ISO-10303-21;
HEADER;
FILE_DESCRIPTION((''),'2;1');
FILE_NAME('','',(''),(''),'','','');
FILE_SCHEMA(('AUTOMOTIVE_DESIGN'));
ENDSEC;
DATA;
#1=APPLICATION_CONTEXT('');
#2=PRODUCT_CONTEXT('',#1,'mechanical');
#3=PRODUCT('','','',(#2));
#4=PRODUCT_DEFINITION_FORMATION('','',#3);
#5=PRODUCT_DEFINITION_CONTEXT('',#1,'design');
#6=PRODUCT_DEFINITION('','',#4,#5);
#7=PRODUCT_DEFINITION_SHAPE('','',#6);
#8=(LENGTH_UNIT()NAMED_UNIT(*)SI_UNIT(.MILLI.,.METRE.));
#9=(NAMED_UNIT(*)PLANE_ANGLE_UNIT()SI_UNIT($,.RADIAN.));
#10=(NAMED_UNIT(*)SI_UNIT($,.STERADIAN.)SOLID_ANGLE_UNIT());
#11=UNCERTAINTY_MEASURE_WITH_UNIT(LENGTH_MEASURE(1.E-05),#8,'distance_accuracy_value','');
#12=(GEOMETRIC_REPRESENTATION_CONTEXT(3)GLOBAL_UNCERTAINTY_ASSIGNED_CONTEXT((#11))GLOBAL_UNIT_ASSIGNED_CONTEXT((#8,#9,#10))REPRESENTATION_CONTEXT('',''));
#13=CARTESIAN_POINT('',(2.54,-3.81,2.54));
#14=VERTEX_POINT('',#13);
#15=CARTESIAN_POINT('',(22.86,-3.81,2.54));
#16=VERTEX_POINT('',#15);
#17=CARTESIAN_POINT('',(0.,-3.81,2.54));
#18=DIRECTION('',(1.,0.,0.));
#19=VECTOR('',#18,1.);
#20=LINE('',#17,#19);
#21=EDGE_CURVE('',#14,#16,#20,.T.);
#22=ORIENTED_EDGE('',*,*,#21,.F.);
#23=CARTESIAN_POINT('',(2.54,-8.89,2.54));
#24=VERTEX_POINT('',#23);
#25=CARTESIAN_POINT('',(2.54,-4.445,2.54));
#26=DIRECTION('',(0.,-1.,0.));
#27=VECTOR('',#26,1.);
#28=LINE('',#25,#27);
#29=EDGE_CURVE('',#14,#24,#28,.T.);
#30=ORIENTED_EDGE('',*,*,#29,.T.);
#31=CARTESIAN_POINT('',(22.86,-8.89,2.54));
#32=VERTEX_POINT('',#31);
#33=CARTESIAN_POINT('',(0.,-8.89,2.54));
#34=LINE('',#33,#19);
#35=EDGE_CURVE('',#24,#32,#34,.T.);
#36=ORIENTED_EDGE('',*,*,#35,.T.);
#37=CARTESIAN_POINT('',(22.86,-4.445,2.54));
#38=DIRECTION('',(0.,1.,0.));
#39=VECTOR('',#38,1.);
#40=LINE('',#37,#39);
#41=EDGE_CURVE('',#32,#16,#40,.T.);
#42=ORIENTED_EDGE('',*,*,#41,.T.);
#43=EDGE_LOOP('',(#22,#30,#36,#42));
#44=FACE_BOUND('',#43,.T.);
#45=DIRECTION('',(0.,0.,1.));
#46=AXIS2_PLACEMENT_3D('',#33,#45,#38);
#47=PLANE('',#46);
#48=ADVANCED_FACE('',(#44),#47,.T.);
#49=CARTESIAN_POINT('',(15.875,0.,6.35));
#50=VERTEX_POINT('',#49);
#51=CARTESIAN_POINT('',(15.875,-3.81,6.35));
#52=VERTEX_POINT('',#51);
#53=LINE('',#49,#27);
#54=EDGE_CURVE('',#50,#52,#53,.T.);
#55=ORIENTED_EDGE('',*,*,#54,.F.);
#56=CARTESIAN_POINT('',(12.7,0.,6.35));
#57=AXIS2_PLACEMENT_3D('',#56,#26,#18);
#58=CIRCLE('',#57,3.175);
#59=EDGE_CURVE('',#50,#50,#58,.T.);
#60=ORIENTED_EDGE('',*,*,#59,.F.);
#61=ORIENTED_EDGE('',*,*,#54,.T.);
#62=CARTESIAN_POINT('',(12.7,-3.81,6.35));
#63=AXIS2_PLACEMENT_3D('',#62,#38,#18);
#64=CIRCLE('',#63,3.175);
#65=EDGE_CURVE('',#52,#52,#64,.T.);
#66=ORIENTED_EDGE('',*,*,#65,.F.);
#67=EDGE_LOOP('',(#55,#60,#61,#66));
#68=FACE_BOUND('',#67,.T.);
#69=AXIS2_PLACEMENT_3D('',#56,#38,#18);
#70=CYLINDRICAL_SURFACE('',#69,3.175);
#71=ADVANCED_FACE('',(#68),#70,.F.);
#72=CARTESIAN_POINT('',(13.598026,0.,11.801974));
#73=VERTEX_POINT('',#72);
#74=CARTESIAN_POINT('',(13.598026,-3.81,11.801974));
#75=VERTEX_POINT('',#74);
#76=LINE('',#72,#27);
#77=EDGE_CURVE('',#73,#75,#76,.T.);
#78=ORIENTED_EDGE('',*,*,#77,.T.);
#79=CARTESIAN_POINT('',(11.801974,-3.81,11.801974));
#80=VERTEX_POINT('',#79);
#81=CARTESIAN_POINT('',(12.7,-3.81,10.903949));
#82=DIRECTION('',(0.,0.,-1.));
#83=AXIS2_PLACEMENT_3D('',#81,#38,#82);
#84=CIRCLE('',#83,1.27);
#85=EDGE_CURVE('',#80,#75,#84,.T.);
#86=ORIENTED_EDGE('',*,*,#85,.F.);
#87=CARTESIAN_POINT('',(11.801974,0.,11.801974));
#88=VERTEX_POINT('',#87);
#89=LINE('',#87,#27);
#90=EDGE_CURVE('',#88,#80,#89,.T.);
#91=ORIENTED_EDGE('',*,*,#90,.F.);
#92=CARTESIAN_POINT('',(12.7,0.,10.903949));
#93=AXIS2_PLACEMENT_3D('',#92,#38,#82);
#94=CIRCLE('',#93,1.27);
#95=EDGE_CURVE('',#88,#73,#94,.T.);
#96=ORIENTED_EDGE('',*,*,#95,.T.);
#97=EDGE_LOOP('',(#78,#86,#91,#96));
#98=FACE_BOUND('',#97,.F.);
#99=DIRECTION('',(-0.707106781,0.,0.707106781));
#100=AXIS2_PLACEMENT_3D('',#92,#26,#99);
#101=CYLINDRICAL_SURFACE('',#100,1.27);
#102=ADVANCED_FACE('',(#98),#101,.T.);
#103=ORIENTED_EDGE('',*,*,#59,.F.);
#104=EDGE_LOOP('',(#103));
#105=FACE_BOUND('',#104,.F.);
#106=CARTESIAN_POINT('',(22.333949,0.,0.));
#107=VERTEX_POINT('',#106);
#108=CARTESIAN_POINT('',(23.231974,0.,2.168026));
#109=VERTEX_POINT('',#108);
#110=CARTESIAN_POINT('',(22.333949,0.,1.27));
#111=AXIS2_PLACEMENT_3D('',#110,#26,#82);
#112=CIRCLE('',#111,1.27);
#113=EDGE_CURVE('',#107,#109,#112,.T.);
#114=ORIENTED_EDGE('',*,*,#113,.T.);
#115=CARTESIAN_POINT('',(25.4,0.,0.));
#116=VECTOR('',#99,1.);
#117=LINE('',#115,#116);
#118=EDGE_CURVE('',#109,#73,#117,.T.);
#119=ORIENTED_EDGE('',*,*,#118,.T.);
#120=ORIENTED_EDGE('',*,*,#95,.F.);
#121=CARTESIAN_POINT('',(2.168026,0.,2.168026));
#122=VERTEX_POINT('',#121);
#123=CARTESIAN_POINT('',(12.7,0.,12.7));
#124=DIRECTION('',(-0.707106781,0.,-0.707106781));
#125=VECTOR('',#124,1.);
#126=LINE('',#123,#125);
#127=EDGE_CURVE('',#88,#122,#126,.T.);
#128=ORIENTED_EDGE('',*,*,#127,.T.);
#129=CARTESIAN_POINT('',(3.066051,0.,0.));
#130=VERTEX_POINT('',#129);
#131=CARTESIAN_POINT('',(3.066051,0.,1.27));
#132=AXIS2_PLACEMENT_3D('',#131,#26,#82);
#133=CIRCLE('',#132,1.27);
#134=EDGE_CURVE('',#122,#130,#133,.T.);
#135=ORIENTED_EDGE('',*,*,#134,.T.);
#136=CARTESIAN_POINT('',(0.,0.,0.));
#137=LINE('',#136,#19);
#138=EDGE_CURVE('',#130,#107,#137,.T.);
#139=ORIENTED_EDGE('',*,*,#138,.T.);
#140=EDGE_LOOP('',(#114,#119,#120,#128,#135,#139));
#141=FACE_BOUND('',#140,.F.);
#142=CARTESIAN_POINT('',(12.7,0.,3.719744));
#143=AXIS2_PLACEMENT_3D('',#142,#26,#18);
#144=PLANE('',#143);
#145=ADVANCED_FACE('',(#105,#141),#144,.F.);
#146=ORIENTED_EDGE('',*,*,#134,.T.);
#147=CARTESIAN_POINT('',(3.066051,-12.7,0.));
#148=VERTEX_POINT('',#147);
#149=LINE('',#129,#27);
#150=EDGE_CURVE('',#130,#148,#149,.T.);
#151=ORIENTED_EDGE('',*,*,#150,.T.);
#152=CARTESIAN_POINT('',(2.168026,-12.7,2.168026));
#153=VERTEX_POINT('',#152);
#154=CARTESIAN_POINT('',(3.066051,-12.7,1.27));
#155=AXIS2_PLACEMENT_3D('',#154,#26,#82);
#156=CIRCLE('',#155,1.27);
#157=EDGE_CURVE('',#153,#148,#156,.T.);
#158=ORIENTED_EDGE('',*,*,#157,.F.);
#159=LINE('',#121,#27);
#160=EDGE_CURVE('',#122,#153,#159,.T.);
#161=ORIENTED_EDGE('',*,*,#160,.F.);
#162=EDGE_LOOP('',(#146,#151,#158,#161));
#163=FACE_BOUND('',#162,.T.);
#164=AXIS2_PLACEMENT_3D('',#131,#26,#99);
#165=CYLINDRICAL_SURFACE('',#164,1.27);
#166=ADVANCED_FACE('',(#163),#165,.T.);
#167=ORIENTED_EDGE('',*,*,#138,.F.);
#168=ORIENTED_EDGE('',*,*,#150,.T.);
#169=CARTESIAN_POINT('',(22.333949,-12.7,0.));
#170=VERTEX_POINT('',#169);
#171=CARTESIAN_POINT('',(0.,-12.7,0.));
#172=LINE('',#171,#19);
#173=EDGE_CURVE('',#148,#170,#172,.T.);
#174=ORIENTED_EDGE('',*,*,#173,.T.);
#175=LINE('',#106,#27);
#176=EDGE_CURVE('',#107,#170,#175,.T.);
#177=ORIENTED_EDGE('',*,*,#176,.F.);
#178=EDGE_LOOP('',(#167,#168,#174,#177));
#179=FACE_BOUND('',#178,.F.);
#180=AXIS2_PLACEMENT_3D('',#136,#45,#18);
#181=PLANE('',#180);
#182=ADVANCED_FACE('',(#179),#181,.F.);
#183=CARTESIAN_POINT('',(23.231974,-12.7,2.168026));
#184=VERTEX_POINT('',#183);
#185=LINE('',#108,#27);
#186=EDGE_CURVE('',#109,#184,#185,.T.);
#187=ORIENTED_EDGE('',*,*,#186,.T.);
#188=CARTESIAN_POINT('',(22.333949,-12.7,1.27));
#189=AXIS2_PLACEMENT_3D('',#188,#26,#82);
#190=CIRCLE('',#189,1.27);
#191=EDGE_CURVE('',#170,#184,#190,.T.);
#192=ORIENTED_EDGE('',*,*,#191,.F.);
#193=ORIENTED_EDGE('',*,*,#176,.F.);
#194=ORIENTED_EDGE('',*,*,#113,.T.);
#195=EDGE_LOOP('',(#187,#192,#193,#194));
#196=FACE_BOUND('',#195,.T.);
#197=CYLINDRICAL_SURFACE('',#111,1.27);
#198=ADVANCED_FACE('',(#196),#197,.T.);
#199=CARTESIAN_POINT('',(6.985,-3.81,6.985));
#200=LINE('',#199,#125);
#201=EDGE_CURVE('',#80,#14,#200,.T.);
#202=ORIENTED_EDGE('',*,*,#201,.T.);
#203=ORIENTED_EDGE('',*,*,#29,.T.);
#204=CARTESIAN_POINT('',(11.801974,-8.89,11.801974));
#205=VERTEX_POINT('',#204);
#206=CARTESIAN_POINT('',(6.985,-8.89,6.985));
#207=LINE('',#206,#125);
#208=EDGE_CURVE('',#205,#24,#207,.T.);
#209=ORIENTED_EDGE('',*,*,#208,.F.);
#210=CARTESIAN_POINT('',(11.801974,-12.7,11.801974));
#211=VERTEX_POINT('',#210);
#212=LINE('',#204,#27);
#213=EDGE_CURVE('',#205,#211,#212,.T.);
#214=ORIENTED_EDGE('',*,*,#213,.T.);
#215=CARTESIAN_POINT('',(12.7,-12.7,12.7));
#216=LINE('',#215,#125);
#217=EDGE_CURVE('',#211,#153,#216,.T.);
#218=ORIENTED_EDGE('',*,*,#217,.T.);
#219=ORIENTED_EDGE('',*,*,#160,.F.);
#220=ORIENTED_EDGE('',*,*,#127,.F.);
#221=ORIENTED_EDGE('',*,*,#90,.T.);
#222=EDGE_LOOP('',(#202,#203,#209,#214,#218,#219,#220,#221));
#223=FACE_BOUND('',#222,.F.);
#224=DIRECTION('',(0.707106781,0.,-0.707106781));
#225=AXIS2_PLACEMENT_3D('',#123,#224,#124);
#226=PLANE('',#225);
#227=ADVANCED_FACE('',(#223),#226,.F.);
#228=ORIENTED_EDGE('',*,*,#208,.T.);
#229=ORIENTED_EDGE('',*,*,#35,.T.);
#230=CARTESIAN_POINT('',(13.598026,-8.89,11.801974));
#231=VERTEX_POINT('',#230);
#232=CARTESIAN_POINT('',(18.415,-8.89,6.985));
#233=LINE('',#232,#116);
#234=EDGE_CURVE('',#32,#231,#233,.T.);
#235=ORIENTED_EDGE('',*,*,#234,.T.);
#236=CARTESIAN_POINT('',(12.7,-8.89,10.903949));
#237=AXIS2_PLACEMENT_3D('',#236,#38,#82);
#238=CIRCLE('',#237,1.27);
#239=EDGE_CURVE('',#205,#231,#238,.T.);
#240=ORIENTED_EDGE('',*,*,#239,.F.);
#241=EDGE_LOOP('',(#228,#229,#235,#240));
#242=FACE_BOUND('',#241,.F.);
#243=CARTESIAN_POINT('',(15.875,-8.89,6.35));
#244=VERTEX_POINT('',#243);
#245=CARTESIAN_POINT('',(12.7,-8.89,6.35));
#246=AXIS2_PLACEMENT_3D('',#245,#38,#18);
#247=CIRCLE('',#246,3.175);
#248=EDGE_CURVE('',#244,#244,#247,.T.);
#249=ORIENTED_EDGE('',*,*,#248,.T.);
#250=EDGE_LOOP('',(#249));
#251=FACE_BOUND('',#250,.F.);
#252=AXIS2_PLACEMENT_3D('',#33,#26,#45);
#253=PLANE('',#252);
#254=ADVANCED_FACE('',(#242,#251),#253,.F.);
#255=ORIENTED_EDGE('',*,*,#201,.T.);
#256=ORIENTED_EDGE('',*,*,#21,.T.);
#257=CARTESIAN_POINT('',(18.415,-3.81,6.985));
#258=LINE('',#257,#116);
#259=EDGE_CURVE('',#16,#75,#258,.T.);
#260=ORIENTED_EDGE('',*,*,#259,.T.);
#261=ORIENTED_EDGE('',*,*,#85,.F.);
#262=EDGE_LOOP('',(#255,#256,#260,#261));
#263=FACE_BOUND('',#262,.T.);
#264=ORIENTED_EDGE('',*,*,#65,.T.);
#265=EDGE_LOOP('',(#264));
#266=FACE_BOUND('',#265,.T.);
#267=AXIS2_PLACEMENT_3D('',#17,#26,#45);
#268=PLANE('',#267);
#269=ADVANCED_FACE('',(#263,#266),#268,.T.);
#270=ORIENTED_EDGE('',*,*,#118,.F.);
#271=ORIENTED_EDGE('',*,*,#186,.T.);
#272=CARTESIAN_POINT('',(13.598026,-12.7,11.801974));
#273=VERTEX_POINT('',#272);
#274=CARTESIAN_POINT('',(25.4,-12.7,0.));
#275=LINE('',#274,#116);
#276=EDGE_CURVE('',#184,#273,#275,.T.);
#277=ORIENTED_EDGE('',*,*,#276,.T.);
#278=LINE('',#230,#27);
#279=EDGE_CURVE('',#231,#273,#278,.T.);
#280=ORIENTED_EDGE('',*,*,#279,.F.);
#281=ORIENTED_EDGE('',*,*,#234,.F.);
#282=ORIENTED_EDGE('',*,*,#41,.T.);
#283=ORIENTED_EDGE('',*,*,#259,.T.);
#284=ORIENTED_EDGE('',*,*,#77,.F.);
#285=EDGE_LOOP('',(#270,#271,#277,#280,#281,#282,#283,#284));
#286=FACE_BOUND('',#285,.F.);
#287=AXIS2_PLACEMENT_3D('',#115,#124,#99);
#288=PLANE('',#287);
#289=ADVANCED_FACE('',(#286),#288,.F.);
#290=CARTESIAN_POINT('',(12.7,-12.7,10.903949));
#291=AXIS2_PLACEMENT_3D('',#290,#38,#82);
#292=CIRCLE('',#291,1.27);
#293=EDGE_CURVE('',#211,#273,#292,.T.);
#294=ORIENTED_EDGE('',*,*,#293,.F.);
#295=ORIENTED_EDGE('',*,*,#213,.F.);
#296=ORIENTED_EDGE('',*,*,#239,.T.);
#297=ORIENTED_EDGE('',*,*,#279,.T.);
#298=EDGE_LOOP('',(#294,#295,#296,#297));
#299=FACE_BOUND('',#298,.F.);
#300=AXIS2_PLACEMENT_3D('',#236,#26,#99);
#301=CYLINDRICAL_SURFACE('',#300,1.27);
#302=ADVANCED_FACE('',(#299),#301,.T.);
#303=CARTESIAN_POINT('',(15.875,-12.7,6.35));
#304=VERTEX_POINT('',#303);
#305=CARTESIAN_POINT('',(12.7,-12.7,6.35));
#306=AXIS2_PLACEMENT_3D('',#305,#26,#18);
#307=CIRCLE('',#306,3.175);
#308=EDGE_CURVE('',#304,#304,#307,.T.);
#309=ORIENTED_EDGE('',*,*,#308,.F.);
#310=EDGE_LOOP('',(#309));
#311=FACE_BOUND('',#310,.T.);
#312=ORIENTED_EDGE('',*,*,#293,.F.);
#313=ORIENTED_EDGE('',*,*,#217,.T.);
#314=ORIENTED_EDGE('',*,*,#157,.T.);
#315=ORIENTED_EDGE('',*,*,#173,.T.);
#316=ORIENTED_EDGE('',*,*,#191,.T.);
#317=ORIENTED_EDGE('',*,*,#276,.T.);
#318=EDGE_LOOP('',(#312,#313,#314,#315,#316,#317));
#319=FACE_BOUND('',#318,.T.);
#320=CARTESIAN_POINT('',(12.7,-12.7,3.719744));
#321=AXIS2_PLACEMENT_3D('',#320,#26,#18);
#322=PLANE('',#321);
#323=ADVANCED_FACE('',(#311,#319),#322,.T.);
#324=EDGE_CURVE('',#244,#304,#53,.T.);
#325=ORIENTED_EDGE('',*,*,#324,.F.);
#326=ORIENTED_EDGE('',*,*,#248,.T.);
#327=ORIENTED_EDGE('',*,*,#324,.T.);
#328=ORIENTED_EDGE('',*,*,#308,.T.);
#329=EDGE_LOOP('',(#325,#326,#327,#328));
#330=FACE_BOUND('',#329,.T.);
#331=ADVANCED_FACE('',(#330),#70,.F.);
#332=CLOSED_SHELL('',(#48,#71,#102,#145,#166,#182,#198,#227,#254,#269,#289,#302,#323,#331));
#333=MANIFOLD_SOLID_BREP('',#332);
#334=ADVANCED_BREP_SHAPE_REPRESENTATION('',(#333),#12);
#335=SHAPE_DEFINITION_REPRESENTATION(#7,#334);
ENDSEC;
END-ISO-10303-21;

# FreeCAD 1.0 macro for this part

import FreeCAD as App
import Part
import Sketcher

V = App.Vector
Q = App.Units.Quantity


def edges_at(feature, points):
    """Names of the edges that pass closest to the given points."""
    edges = feature.Shape.Edges
    near = lambda p: min(range(len(edges)), key=lambda i: edges[i].distToShape(Part.Vertex(*p))[0])
    return sorted({f"Edge{near(p) + 1}" for p in points})

doc = App.newDocument("Part")
body = doc.addObject("PartDesign::Body", "Body")

sketch1 = doc.addObject("Sketcher::SketchObject", "Sketch")
body.addObject(sketch1)
sketch1.AttachmentSupport = (doc.XZ_Plane, [""])
sketch1.MapMode = "FlatFace"
sketch1.addGeometry([
    Part.LineSegment(V(12.7, 12.7, 0), V(0, 0, 0)),
    Part.LineSegment(V(0, 0, 0), V(25.4, 0, 0)),
    Part.LineSegment(V(25.4, 0, 0), V(12.7, 12.7, 0)),
    Part.Circle(V(12.7, 6.35, 0), V(0, 0, 1), 3.175),
], False)
sketch1.addConstraint([
    Sketcher.Constraint("Coincident", 0, 2, 1, 1),
    Sketcher.Constraint("Coincident", 1, 2, 2, 1),
    Sketcher.Constraint("Coincident", 2, 2, 0, 1),
    Sketcher.Constraint("Horizontal", 1),
    Sketcher.Constraint("Coincident", 0, 2, -1, 1),
    Sketcher.Constraint("Perpendicular", 0, 2),
    Sketcher.Constraint("Vertical", 3, 3, 2, 2),
    Sketcher.Constraint("Equal", 0, 2),
    Sketcher.Constraint("Diameter", 3, Q("0.25 in")),
    Sketcher.Constraint("DistanceX", 1, 1, 1, 2, Q("1 in")),
    Sketcher.Constraint("DistanceY", -1, 1, 3, 3, Q("0.25 in")),
])
pad1 = doc.addObject("PartDesign::Pad", "Pad")
body.addObject(pad1)
pad1.Profile = sketch1
pad1.Length = Q("0.5 in")

sketch2 = doc.addObject("Sketcher::SketchObject", "Sketch001")
body.addObject(sketch2)
sketch2.AttachmentSupport = (doc.YZ_Plane, [""])
sketch2.MapMode = "FlatFace"
sketch2.addGeometry([
    Part.LineSegment(V(-8.89, 12.7, 0), V(-8.89, 2.54, 0)),
    Part.LineSegment(V(-8.89, 2.54, 0), V(-3.81, 2.54, 0)),
    Part.LineSegment(V(-3.81, 2.54, 0), V(-3.81, 12.7, 0)),
    Part.LineSegment(V(-3.81, 12.7, 0), V(-8.89, 12.7, 0)),
], False)
sketch2.addConstraint([
    Sketcher.Constraint("Coincident", 0, 2, 1, 1),
    Sketcher.Constraint("Coincident", 1, 2, 2, 1),
    Sketcher.Constraint("Coincident", 2, 2, 3, 1),
    Sketcher.Constraint("Coincident", 3, 2, 0, 1),
    Sketcher.Constraint("Vertical", 0),
    Sketcher.Constraint("Horizontal", 1),
    Sketcher.Constraint("Vertical", 2),
    Sketcher.Constraint("Horizontal", 3),
    Sketcher.Constraint("DistanceX", 1, 1, 1, 2, Q("0.2 in")),
    Sketcher.Constraint("DistanceY", 0, 2, 0, 1, Q("0.4 in")),
    Sketcher.Constraint("DistanceY", -1, 1, 0, 2, Q("0.1 in")),
    Sketcher.Constraint("DistanceX", 0, 2, -1, 1, Q("0.35 in")),
])
pocket1 = doc.addObject("PartDesign::Pocket", "Pocket")
body.addObject(pocket1)
pocket1.Profile = sketch2
pocket1.Type = "ThroughAll"
pocket1.Reversed = True
doc.recompute()

fillet = doc.addObject("PartDesign::Fillet", "Fillet")
body.addObject(fillet)
fillet.Base = (pocket1, edges_at(pocket1, [
    (12.7, -10.795, 12.7),
    (12.7, -1.905, 12.7),
    (0, -6.35, 0),
    (25.4, -6.35, 0),
]))
fillet.Radius = Q("0.05 in")

doc.recompute()
